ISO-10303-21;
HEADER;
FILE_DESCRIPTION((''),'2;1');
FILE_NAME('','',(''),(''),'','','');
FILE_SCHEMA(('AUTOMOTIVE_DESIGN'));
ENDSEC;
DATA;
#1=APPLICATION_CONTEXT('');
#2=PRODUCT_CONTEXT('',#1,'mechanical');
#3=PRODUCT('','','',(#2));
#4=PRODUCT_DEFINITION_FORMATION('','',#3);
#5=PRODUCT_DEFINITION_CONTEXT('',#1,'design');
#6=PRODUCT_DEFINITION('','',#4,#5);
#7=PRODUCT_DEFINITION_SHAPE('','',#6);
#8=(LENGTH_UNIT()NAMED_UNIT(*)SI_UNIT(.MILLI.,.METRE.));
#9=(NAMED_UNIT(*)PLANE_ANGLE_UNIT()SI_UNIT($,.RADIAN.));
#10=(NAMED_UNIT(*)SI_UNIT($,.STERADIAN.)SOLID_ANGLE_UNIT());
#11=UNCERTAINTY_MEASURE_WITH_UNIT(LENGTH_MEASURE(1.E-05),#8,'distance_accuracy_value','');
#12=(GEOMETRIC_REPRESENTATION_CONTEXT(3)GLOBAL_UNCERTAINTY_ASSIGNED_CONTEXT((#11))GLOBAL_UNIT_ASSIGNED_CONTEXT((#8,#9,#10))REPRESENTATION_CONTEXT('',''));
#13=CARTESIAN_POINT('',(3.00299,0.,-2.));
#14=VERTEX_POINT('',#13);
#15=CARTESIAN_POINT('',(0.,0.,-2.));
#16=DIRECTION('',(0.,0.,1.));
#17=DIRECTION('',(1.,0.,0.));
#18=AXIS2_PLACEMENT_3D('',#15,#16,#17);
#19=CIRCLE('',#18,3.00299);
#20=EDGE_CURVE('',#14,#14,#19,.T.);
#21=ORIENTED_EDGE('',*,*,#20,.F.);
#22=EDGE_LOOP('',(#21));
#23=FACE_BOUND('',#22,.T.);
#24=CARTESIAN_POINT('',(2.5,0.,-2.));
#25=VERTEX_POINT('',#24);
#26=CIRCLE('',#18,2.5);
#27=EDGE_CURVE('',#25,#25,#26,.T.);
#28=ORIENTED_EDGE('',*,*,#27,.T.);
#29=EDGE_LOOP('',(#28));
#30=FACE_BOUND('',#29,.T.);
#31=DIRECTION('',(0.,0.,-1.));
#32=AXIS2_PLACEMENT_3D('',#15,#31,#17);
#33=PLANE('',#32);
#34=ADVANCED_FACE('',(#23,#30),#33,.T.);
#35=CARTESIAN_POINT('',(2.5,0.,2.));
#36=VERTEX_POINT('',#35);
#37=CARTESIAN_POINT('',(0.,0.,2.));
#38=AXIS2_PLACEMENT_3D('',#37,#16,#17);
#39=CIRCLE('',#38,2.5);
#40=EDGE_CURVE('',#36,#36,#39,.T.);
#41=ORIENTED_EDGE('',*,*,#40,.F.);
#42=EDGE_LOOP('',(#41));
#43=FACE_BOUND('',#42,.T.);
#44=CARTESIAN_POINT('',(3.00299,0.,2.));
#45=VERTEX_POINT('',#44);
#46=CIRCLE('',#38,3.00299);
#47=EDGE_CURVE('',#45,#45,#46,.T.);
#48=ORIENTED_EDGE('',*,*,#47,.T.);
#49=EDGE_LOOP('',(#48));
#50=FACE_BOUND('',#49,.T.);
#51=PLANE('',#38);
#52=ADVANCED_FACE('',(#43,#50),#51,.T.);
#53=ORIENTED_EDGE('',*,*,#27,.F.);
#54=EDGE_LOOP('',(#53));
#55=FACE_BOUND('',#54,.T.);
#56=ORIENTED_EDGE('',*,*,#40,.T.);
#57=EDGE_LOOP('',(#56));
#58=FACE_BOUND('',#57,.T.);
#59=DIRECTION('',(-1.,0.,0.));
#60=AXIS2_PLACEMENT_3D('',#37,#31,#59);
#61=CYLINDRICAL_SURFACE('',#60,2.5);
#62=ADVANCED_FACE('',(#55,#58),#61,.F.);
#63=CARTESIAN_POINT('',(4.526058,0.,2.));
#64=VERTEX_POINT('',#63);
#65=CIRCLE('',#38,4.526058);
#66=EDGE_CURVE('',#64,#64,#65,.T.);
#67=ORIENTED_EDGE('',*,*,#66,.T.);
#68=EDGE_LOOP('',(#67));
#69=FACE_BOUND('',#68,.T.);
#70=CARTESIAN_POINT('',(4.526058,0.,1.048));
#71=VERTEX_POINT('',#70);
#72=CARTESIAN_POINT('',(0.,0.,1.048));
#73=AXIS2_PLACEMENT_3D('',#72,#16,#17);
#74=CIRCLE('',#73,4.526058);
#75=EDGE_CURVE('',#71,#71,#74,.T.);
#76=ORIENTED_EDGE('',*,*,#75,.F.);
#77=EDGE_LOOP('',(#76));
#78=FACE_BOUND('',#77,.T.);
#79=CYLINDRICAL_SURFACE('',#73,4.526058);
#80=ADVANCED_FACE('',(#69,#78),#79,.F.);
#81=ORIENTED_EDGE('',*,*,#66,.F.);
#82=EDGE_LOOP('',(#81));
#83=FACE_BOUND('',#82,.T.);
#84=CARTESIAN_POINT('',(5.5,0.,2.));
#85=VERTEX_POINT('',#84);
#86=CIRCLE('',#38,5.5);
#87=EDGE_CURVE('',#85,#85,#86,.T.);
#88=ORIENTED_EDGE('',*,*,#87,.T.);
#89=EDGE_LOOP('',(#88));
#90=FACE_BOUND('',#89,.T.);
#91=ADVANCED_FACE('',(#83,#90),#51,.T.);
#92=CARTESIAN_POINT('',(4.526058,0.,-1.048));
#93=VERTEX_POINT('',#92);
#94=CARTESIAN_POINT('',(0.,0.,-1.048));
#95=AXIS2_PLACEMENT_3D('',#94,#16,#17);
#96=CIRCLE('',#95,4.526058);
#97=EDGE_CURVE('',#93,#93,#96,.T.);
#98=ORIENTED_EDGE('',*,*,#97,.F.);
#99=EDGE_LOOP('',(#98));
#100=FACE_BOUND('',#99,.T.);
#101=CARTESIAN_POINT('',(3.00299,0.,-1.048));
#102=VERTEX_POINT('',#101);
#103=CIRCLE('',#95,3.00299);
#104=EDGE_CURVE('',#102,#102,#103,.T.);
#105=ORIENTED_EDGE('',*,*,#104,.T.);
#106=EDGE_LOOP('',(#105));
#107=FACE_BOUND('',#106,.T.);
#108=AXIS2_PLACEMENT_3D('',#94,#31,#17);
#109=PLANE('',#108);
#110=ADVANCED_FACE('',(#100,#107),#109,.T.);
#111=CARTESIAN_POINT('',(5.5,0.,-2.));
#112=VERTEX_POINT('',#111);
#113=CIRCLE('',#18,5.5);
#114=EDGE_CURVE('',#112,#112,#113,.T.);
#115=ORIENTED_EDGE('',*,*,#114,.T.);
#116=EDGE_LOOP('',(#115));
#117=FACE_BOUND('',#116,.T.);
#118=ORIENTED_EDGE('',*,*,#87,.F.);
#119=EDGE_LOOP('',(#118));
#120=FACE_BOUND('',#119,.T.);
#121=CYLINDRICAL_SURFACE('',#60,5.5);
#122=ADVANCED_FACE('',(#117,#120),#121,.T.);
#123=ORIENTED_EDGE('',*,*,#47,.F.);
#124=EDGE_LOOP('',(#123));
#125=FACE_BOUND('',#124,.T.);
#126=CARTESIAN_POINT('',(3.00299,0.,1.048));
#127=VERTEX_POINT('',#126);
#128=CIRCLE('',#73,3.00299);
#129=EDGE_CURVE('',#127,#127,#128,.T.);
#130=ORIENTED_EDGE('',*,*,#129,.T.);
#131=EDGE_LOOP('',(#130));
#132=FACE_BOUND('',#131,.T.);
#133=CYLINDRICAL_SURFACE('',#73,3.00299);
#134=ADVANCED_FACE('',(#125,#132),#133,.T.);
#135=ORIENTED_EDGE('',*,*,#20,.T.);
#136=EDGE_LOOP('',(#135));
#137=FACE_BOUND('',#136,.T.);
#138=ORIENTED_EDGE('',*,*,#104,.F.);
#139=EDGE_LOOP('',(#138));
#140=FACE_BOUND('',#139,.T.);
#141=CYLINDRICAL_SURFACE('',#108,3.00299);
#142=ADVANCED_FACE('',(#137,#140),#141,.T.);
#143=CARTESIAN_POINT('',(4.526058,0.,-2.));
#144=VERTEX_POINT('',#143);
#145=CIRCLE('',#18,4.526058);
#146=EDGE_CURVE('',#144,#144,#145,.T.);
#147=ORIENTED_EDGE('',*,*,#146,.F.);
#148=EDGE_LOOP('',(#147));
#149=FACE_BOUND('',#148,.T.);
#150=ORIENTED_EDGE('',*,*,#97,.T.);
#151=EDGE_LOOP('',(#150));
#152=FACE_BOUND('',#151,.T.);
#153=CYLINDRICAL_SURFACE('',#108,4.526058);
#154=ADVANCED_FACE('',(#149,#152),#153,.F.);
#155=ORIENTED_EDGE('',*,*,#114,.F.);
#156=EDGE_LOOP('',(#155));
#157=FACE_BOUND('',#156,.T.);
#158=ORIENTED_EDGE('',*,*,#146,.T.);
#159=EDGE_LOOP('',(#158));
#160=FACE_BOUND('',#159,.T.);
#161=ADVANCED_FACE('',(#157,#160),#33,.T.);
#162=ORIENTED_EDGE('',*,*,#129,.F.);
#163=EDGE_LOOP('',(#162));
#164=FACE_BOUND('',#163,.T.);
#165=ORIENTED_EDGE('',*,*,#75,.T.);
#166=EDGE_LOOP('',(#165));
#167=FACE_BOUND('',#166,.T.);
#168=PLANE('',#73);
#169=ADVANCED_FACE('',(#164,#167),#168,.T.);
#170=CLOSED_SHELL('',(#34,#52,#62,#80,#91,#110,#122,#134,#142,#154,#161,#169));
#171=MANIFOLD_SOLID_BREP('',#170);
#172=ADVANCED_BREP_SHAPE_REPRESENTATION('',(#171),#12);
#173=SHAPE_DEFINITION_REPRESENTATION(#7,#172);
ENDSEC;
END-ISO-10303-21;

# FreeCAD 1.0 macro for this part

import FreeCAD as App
import Part
import Sketcher

V = App.Vector

doc = App.newDocument("Part")
body = doc.addObject("PartDesign::Body", "Body")

sketch1 = body.newObject("Sketcher::SketchObject", "Sketch")
sketch1.AttachmentSupport = (doc.getObject("XY_Plane"), [""])
sketch1.MapMode = "FlatFace"
sketch1.addGeometry([
    Part.Circle(V(0, 0, 0), V(0, 0, 1), 5.5),
    Part.Circle(V(0, 0, 0), V(0, 0, 1), 2.5),
], False)
sketch1.addConstraint([
    Sketcher.Constraint("Coincident", 0, 3, -1, 1),
    Sketcher.Constraint("Coincident", 1, 3, -1, 1),
    Sketcher.Constraint("Diameter", 0, 11.0),
    Sketcher.Constraint("Diameter", 1, 5.0),
])
pad1 = body.newObject("PartDesign::Pad", "Pad")
pad1.Profile = sketch1
pad1.Length = 2

sketch2 = body.newObject("Sketcher::SketchObject", "Sketch001")
sketch2.AttachmentSupport = (doc.getObject("XY_Plane"), [""])
sketch2.MapMode = "FlatFace"
sketch2.AttachmentOffset = App.Placement(V(0, 0, 2), App.Rotation())
sketch2.addGeometry([
    Part.Circle(V(0, 0, 0), V(0, 0, 1), 4.526058),
    Part.Circle(V(0, 0, 0), V(0, 0, 1), 3.00299),
], False)
sketch2.addConstraint([
    Sketcher.Constraint("Coincident", 0, 3, -1, 1),
    Sketcher.Constraint("Coincident", 1, 3, -1, 1),
    Sketcher.Constraint("Diameter", 1, 6.00598),
    Sketcher.Constraint("Diameter", 0, 9.052115),
])
pocket1 = body.newObject("PartDesign::Pocket", "Pocket")
pocket1.Profile = sketch2
pocket1.Length = 0.952
body2 = doc.addObject("PartDesign::Body", "Body001")
doc.recompute()

body2.BaseFeature = body
doc.recompute()

mirroring = doc.addObject("Part::Mirroring", "Mirroring")
mirroring.Source = body
mirroring.Base = V(0, 0, 0)
mirroring.Normal = V(0, 0, 1)
body3 = doc.addObject("PartDesign::Body", "Body002")
body3.BaseFeature = mirroring
boolean = body2.newObject("PartDesign::Boolean", "Boolean")
boolean.Type = "Fuse"
boolean.addObjects([body3])
doc.recompute()
mirroring.Visibility = False

doc.recompute()
